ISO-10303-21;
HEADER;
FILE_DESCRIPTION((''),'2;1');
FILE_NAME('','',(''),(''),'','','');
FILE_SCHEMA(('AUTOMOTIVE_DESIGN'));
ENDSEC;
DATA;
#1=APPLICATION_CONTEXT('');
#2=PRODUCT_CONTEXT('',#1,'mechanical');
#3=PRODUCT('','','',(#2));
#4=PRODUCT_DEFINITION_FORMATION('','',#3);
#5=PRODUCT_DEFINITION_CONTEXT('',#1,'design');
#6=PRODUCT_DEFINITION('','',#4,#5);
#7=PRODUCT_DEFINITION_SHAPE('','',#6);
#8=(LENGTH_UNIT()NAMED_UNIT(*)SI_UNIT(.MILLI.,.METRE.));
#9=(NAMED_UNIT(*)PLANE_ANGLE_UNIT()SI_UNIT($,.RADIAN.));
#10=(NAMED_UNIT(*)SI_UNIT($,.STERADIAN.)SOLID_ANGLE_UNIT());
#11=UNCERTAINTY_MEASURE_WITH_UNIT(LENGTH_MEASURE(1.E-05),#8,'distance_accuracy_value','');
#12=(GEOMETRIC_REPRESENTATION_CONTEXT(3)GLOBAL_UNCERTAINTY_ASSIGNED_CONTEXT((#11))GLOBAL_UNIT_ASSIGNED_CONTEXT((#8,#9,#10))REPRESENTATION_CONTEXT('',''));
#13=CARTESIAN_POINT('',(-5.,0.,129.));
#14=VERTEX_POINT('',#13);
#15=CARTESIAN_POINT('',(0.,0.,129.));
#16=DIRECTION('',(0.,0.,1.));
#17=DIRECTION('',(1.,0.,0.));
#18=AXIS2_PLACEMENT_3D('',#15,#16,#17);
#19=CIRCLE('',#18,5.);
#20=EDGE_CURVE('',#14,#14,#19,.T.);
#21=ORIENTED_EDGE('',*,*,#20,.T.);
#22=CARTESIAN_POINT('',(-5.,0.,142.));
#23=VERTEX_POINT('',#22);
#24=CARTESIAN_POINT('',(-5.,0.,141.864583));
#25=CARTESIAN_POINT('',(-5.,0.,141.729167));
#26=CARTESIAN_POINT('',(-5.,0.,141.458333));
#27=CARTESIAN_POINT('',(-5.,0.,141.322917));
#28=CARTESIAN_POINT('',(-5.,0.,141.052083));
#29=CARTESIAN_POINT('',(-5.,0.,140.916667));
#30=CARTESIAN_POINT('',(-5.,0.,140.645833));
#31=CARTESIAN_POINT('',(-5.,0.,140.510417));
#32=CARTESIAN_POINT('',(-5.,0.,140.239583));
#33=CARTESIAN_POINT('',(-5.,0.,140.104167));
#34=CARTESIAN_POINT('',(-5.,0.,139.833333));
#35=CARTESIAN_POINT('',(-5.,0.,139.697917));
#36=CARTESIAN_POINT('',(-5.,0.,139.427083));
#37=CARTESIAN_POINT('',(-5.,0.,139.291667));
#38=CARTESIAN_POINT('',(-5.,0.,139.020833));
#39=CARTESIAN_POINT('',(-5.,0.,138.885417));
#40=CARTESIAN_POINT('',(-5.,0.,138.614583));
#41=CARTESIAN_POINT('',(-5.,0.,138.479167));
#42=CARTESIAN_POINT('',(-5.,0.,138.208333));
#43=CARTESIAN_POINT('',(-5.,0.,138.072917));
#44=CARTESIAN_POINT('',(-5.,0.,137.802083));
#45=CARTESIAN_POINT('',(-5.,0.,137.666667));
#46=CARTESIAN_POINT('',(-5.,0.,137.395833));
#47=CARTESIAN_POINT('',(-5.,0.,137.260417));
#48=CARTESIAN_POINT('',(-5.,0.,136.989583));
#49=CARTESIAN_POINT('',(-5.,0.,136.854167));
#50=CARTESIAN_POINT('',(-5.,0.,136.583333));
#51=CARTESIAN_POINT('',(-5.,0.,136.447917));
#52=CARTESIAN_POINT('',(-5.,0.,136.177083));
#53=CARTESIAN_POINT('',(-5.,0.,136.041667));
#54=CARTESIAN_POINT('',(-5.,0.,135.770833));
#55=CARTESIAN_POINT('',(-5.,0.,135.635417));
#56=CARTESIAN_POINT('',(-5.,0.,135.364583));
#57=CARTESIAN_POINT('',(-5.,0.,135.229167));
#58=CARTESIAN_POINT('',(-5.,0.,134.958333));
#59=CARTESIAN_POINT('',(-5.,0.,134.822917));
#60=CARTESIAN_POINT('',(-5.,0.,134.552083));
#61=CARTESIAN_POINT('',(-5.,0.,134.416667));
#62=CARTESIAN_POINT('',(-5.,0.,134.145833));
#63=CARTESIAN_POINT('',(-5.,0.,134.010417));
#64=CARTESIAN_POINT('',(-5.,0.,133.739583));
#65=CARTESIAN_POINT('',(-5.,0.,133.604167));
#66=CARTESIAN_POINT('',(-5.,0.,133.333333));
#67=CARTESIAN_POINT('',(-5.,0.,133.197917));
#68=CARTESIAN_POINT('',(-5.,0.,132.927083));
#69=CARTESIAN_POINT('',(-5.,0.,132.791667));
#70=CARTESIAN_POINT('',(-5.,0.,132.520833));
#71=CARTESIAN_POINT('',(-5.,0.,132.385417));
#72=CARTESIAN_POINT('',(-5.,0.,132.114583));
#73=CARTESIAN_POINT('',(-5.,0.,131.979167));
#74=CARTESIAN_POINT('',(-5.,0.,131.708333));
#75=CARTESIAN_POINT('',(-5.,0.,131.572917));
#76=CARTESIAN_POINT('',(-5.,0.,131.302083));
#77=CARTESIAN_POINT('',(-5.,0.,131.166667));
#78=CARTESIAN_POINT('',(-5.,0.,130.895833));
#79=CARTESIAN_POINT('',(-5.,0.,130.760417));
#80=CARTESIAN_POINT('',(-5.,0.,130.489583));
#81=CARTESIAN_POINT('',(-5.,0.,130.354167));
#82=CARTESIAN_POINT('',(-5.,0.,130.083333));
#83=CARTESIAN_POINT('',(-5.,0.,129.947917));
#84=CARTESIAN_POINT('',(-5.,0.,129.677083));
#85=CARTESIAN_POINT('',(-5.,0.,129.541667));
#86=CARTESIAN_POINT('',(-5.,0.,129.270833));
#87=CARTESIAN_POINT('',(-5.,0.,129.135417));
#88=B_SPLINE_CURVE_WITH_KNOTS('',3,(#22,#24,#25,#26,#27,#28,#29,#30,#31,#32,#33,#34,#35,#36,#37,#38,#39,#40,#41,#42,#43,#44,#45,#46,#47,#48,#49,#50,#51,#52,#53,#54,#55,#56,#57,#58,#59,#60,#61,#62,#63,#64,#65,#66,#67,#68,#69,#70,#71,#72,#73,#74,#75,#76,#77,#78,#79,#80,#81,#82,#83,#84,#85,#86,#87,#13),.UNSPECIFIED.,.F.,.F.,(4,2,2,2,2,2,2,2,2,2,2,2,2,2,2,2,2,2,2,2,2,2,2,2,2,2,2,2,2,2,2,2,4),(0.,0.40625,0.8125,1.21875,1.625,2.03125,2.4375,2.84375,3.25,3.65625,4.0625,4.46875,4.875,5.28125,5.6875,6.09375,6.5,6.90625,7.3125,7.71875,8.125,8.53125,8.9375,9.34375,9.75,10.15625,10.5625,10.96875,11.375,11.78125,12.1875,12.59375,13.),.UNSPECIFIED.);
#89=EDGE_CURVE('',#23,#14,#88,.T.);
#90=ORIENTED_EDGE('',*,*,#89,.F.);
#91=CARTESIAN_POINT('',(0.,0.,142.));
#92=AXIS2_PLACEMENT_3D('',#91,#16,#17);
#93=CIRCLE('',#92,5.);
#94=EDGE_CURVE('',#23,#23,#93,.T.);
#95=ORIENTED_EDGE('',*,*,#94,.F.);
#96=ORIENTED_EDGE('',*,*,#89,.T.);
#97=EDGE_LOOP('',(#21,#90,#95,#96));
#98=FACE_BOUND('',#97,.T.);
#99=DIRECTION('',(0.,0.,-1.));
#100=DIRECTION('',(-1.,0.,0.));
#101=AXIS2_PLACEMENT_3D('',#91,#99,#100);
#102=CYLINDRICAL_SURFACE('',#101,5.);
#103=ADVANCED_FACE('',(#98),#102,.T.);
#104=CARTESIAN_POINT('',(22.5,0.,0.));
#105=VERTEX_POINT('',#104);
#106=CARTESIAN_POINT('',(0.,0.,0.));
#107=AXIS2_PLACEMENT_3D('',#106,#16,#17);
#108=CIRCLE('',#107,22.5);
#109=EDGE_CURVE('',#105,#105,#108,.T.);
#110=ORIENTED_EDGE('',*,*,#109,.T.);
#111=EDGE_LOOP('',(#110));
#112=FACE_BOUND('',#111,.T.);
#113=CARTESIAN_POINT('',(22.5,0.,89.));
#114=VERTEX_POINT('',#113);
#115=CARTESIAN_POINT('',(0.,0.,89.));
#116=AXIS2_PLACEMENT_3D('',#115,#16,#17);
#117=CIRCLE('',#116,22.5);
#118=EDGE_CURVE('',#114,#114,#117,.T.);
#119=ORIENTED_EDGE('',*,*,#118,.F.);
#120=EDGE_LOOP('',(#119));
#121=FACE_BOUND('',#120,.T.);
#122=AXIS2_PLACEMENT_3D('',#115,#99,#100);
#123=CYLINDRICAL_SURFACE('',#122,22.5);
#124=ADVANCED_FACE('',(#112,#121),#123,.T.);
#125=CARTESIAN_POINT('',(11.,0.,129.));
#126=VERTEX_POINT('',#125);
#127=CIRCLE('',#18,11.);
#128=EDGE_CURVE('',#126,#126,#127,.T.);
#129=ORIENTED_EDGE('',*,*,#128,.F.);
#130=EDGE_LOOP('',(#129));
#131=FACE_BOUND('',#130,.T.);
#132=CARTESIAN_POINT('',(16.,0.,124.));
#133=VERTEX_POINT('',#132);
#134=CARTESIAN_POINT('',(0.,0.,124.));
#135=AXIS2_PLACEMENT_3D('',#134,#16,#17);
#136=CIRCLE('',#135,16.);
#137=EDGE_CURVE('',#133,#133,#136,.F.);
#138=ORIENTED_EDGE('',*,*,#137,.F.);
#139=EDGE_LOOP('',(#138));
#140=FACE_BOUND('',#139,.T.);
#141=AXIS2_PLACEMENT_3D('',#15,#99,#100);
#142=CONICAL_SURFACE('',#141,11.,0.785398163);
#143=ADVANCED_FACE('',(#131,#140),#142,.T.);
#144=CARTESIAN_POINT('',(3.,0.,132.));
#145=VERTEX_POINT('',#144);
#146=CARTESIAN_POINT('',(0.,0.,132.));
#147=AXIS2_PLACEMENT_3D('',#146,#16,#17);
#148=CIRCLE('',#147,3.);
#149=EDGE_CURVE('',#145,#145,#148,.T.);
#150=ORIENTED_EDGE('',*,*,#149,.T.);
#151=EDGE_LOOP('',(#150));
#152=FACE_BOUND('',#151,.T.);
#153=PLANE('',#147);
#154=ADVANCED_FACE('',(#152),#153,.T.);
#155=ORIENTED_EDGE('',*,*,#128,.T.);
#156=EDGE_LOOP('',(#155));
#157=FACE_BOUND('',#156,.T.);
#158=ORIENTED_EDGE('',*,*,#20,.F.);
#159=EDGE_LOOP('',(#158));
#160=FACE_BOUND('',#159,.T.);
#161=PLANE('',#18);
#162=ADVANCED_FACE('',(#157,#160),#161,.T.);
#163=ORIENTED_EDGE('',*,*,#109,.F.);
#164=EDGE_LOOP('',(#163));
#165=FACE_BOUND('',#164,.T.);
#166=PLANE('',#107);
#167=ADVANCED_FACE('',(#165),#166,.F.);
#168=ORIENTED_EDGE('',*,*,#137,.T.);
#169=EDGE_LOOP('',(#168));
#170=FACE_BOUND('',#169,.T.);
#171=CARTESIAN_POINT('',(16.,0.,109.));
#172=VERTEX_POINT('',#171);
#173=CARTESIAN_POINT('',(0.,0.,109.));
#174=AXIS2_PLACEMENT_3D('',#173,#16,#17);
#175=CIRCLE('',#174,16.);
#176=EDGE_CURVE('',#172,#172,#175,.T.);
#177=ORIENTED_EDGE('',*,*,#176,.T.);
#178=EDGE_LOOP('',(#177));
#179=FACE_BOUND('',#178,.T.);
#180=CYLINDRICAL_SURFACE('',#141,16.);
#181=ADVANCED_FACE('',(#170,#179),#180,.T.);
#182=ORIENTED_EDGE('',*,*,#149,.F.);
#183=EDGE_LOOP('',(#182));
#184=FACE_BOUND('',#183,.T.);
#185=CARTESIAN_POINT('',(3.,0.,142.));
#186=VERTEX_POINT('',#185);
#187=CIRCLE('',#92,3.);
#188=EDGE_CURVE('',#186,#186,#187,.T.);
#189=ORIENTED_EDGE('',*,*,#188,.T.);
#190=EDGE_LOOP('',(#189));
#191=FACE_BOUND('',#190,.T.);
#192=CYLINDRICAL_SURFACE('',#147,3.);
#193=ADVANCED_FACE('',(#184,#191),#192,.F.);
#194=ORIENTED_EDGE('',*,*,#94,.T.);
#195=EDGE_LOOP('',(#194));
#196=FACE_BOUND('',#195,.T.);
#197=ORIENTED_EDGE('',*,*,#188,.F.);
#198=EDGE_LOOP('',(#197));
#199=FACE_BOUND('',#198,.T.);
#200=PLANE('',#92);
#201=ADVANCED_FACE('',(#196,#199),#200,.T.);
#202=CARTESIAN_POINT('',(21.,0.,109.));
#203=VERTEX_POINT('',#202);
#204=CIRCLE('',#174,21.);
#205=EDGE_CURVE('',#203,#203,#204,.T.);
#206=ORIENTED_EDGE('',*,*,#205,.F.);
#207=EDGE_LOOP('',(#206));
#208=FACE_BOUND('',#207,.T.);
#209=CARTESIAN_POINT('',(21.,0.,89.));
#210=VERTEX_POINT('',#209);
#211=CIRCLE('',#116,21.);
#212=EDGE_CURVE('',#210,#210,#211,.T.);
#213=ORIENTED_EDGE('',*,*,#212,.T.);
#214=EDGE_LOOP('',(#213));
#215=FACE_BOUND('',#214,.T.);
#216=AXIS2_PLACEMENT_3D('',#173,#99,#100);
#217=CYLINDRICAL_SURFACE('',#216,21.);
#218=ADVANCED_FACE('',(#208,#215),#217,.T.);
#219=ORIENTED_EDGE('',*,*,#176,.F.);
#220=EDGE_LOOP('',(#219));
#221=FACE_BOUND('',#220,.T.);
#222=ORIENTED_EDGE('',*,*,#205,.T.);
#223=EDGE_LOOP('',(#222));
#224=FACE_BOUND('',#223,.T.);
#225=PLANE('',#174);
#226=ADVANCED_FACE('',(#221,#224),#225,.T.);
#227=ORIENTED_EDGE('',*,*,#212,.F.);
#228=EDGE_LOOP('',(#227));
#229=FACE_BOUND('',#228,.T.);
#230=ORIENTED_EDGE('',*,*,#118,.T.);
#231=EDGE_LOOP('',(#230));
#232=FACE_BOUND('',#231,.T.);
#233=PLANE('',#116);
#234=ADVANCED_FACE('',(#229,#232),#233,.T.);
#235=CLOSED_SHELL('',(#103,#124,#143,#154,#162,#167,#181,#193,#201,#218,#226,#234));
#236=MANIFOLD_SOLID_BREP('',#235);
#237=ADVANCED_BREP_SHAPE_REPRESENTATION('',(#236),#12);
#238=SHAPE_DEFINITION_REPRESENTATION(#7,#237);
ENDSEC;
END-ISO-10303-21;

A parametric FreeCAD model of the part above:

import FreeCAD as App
import Part
import Sketcher

V = App.Vector
Q = App.Units.Quantity


def edges_at(feature, points):
    """Names of the edges that pass closest to the given points."""
    edges = feature.Shape.Edges
    near = lambda p: min(range(len(edges)), key=lambda i: edges[i].distToShape(Part.Vertex(*p))[0])
    return sorted({f"Edge{near(p) + 1}" for p in points})

doc = App.newDocument("Part")
body = doc.addObject("PartDesign::Body", "Body")

sketch1 = doc.addObject("Sketcher::SketchObject", "Sketch")
body.addObject(sketch1)
sketch1.AttachmentSupport = (doc.XY_Plane, [""])
sketch1.MapMode = "FlatFace"
sketch1.addGeometry(Part.Circle(V(0, 0, 0), V(0, 0, 1), 22.5), False)
sketch1.addConstraint([
    Sketcher.Constraint("Coincident", 0, 3, -1, 1),
    Sketcher.Constraint("Diameter", 0, Q("45 mm")),
])
pad1 = doc.addObject("PartDesign::Pad", "Pad")
body.addObject(pad1)
pad1.Profile = sketch1
pad1.Length = 89

sketch2 = doc.addObject("Sketcher::SketchObject", "Sketch001")
body.addObject(sketch2)
sketch2.AttachmentSupport = (doc.XY_Plane, [""])
sketch2.MapMode = "FlatFace"
sketch2.AttachmentOffset = App.Placement(V(0, 0, 89), App.Rotation())
sketch2.addGeometry(Part.Circle(V(0, 0, 0), V(0, 0, 1), 21), False)
sketch2.addConstraint([
    Sketcher.Constraint("Coincident", 0, 3, -1, 1),
    Sketcher.Constraint("Diameter", 0, Q("42 mm")),
])
pad2 = doc.addObject("PartDesign::Pad", "Pad001")
body.addObject(pad2)
pad2.Profile = sketch2
pad2.Length = 20

sketch3 = doc.addObject("Sketcher::SketchObject", "Sketch002")
body.addObject(sketch3)
sketch3.AttachmentSupport = (doc.XY_Plane, [""])
sketch3.MapMode = "FlatFace"
sketch3.AttachmentOffset = App.Placement(V(0, 0, 109), App.Rotation())
sketch3.addGeometry(Part.Circle(V(0, 0, 0), V(0, 0, 1), 16), False)
sketch3.addConstraint([
    Sketcher.Constraint("Coincident", 0, 3, -1, 1),
    Sketcher.Constraint("Diameter", 0, Q("32 mm")),
])
pad3 = doc.addObject("PartDesign::Pad", "Pad002")
body.addObject(pad3)
pad3.Profile = sketch3
pad3.Length = 20
doc.recompute()

chamfer = doc.addObject("PartDesign::Chamfer", "Chamfer")
body.addObject(chamfer)
chamfer.Base = (pad3, edges_at(pad3, [(-16, 0, 129)]))
chamfer.Size = 5

sketch4 = doc.addObject("Sketcher::SketchObject", "Sketch003")
body.addObject(sketch4)
sketch4.AttachmentSupport = (doc.XY_Plane, [""])
sketch4.MapMode = "FlatFace"
sketch4.AttachmentOffset = App.Placement(V(0, 0, 129), App.Rotation())
sketch4.addGeometry(Part.Circle(V(0, 0, 0), V(0, 0, 1), 5), False)
sketch4.addConstraint([
    Sketcher.Constraint("Coincident", 0, 3, -1, 1),
    Sketcher.Constraint("Diameter", 0, Q("10 mm")),
])
pad4 = doc.addObject("PartDesign::Pad", "Pad003")
body.addObject(pad4)
pad4.Profile = sketch4
pad4.Length = 13

sketch5 = doc.addObject("Sketcher::SketchObject", "Sketch004")
body.addObject(sketch5)
sketch5.AttachmentSupport = (doc.XY_Plane, [""])
sketch5.MapMode = "FlatFace"
sketch5.AttachmentOffset = App.Placement(V(0, 0, 142), App.Rotation())
sketch5.addGeometry(Part.Circle(V(0, 0, 0), V(0, 0, 1), 3), False)
sketch5.addConstraint([
    Sketcher.Constraint("Coincident", 0, 3, -1, 1),
    Sketcher.Constraint("Diameter", 0, Q("6 mm")),
])
pocket1 = doc.addObject("PartDesign::Pocket", "Pocket")
body.addObject(pocket1)
pocket1.Profile = sketch5
pocket1.Length = 10

doc.recompute()
